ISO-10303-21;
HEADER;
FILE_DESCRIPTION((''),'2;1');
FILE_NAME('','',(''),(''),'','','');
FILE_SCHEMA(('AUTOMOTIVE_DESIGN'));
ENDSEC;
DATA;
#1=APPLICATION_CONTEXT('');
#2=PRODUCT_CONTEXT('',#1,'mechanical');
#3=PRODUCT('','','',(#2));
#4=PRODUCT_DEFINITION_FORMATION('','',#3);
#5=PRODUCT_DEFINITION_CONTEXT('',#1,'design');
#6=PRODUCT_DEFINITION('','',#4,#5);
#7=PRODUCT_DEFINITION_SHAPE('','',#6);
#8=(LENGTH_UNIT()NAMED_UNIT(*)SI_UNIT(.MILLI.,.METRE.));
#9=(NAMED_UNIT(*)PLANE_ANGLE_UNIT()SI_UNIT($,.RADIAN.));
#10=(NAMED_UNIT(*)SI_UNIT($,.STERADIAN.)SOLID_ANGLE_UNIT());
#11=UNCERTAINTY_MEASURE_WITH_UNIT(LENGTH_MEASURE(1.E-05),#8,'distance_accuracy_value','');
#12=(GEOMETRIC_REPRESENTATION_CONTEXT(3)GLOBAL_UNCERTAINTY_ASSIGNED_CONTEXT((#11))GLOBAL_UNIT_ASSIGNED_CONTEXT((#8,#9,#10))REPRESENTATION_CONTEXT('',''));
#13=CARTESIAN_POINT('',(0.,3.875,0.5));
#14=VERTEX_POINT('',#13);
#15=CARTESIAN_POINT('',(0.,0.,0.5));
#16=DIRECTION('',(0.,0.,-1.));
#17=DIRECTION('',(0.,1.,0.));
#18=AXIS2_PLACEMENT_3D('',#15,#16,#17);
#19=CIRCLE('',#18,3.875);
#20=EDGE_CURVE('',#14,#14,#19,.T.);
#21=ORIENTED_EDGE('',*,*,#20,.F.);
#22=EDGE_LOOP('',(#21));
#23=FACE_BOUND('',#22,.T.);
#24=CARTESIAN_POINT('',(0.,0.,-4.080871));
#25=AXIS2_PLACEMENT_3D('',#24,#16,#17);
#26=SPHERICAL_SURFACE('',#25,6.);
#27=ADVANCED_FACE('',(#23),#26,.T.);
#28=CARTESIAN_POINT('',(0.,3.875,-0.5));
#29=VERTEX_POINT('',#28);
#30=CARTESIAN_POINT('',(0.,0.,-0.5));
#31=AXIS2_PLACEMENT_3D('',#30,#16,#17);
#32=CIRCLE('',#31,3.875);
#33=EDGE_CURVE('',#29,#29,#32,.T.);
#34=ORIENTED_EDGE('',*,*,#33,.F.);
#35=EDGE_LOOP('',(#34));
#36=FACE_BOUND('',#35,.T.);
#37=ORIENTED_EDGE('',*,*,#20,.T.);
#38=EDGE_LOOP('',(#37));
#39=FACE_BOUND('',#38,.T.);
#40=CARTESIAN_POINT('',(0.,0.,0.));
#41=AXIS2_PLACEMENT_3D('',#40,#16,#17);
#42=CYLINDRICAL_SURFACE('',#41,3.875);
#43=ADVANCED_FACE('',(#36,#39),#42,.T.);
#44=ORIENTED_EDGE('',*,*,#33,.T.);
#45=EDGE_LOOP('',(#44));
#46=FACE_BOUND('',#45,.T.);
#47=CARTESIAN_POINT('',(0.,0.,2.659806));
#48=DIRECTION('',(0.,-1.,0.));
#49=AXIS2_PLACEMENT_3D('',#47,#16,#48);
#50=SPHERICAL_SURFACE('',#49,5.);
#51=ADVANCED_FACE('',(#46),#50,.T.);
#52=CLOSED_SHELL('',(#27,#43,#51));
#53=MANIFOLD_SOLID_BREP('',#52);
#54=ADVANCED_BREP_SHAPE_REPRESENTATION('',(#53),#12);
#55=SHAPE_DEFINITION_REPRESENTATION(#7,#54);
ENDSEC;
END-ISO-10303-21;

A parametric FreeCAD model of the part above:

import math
import FreeCAD as App
import Part
import Sketcher
from FreeCAD import Vector

doc = App.newDocument("Part")
params = doc.addObject("Spreadsheet::Sheet", "Params")
for row, (alias, value) in enumerate([
    ("sketch1_radius", "5 mm"),
    ("sketch1_radius2", "6 mm"),
    ("sketch1_height", "1 mm"),
    ("revolution_angle", "360 deg"),
], start=1):
    params.set(f"A{row}", alias)
    params.set(f"B{row}", "=" + value)
    params.setAlias(f"B{row}", alias)

body = doc.addObject("PartDesign::Body", "Body")

sketch1 = body.newObject("Sketcher::SketchObject", "Sketch")
sketch1.AttachmentSupport = (doc.getObject("YZ_Plane"), [""])
sketch1.MapMode = "FlatFace"
sketch1.addGeometry(Part.ArcOfCircle(Part.Circle(Vector(0, 2.7, 0), Vector(0, 0, 1), 5), math.radians(-90), math.radians(-39)), False)
sketch1.addGeometry(Part.LineSegment(Vector(3.9, -0.5, 0), Vector(3.9, 0.5, 0)), False)
sketch1.addGeometry(Part.ArcOfCircle(Part.Circle(Vector(0, -4.1, 0), Vector(0, 0, 1), 6), math.radians(50), math.radians(90)), False)
sketch1.addGeometry(Part.LineSegment(Vector(0, 1.9, 0), Vector(0, -2.3, 0)), False)
sketch1.addConstraint(Sketcher.Constraint("Coincident", 0, 2, 1, 1))
sketch1.addConstraint(Sketcher.Constraint("Coincident", 1, 2, 2, 1))
sketch1.addConstraint(Sketcher.Constraint("Coincident", 2, 2, 3, 1))
sketch1.addConstraint(Sketcher.Constraint("Coincident", 3, 2, 0, 1))
sketch1.addConstraint(Sketcher.Constraint("Vertical", 1))
sketch1.addConstraint(Sketcher.Constraint("Vertical", 3))
sketch1.addConstraint(Sketcher.Constraint("PointOnObject", 0, 3, -2))
sketch1.addConstraint(Sketcher.Constraint("PointOnObject", 2, 3, -2))
sketch1.addConstraint(Sketcher.Constraint("PointOnObject", 2, 2, -2))
sketch1.addConstraint(Sketcher.Constraint("Radius", 0, 5.0))
sketch1.addConstraint(Sketcher.Constraint("Radius", 2, 6.0))
sketch1.addConstraint(Sketcher.Constraint("DistanceY", 1, 1, 1, 2, 1.0))
sketch1.addConstraint(Sketcher.Constraint("DistanceY", 0, 2, -1, 1, 0.5))
sketch1.addConstraint(Sketcher.Constraint("DistanceX", -1, 1, 0, 2, 3.875))
sketch1.setExpression("Constraints[9]", "Params.sketch1_radius")
sketch1.setExpression("Constraints[10]", "Params.sketch1_radius2")
sketch1.setExpression("Constraints[11]", "Params.sketch1_height")
revolution = body.newObject("PartDesign::Revolution", "Revolution")
revolution.Profile = sketch1
revolution.ReferenceAxis = (sketch1, ["V_Axis"])
revolution.setExpression("Angle", "Params.revolution_angle")

doc.recompute()
